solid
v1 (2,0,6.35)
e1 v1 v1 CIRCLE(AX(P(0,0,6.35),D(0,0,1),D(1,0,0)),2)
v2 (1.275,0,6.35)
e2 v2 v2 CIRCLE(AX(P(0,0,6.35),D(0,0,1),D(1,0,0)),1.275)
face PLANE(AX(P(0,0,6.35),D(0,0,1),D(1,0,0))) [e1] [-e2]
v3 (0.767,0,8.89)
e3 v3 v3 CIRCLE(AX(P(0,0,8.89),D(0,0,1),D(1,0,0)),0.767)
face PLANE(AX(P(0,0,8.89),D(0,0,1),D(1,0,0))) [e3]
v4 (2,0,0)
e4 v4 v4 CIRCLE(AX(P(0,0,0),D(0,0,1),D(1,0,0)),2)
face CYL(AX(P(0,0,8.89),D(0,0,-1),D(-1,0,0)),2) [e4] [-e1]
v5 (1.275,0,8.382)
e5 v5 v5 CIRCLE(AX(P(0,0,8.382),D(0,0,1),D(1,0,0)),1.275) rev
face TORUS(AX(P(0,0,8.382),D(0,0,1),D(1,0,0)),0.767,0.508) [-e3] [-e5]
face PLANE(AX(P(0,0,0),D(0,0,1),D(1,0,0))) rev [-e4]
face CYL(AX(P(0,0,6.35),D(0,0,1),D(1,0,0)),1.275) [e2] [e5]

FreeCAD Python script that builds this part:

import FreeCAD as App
import Part
import Sketcher
Q = App.Units.Quantity


def edges_at(feature, points):
    """Names of the edges that pass closest to the given points."""
    edges = feature.Shape.Edges
    near = lambda p: min(range(len(edges)), key=lambda i: edges[i].distToShape(Part.Vertex(*p))[0])
    return sorted({f"Edge{near(p) + 1}" for p in points})

doc = App.newDocument("Part")
body = doc.addObject("PartDesign::Body", "Body")

# Sketch on XY plane
sketch1 = body.newObject("Sketcher::SketchObject", "Sketch")
sketch1.AttachmentSupport = (doc.getObject("XY_Plane"), [""])
sketch1.MapMode = "FlatFace"
sketch1.addGeometry(Part.Circle(App.Vector(0, 0, 0), App.Vector(0, 0, 1), 2), False)
sketch1.addConstraint([
    Sketcher.Constraint("Coincident", 0, 3, -1, 1),
    Sketcher.Constraint("Diameter", 0, Q("4 mm")),
])
pad1 = body.newObject("PartDesign::Pad", "Pad")
pad1.Profile = sketch1
pad1.Length = Q("0.35 in")

# Sketch on XY plane
sketch2 = body.newObject("Sketcher::SketchObject", "Sketch001")
sketch2.AttachmentSupport = (doc.getObject("XY_Plane"), [""])
sketch2.MapMode = "FlatFace"
sketch2.AttachmentOffset = App.Placement(App.Vector(0, 0, 0.25 * 25.4), App.Rotation())
sketch2.addGeometry([
    Part.Circle(App.Vector(0, 0, 0), App.Vector(0, 0, 1), 2),
    Part.Circle(App.Vector(0, 0, 0), App.Vector(0, 0, 1), 1.3),
], False)
sketch2.addConstraint([
    Sketcher.Constraint("Coincident", 0, 3, -1, 1),
    Sketcher.Constraint("Coincident", 1, 3, -1, 1),
    Sketcher.Constraint("Diameter", 0, Q("4 mm")),
    Sketcher.Constraint("Diameter", 1, Q("2.55 mm")),
])
pocket1 = body.newObject("PartDesign::Pocket", "Pocket")
pocket1.Profile = sketch2
pocket1.Length = Q("0.1 in")
pocket1.Reversed = True
doc.recompute()

fillet = body.newObject("PartDesign::Fillet", "Fillet")
fillet.Base = (pocket1, edges_at(pocket1, [(-1.275, 0, 8.89)]))
fillet.Radius = Q("0.02 in")

doc.recompute()
